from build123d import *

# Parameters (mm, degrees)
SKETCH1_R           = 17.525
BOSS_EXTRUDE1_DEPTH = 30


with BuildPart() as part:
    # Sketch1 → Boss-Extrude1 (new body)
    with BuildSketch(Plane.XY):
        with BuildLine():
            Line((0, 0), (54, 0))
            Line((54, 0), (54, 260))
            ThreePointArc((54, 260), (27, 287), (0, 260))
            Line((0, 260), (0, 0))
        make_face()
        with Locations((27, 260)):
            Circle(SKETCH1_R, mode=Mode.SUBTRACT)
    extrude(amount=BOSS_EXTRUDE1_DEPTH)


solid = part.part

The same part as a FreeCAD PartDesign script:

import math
import FreeCAD as App
import Part
import Sketcher
Q = App.Units.Quantity

doc = App.newDocument("Part")
body = doc.addObject("PartDesign::Body", "Body")

# Sketch on XY plane
sketch1 = body.newObject("Sketcher::SketchObject", "Sketch")
sketch1.AttachmentSupport = (doc.getObject("XY_Plane"), [""])
sketch1.MapMode = "FlatFace"
sketch1.addGeometry([
    Part.LineSegment(App.Vector(0, 0, 0), App.Vector(54, 0, 0)),  # 0
    Part.LineSegment(App.Vector(54, 0, 0), App.Vector(54, 260, 0)),  # 1
    Part.ArcOfCircle(Part.Circle(App.Vector(27, 260, 0), App.Vector(0, 0, 1), 27), math.radians(0), math.radians(180)),  # 2
    Part.LineSegment(App.Vector(0, 260, 0), App.Vector(0, 0, 0)),  # 3
    Part.Circle(App.Vector(27, 260, 0), App.Vector(0, 0, 1), 18),  # 4
], False)
sketch1.addConstraint([
    Sketcher.Constraint("Coincident", 0, 2, 1, 1),
    Sketcher.Constraint("Tangent", 1, 2, 2, 1),
    Sketcher.Constraint("Tangent", 2, 2, 3, 1),
    Sketcher.Constraint("Coincident", 3, 2, 0, 1),
    Sketcher.Constraint("Horizontal", 0),
    Sketcher.Constraint("Vertical", 1),
    Sketcher.Constraint("Vertical", 3),
    Sketcher.Constraint("Coincident", 3, 2, -1, 1),
    Sketcher.Constraint("Coincident", 4, 3, 2, 3),
    Sketcher.Constraint("Radius", 2, Q("27 mm")),
    Sketcher.Constraint("Diameter", 4, Q("35.05 mm")),
    Sketcher.Constraint("DistanceY", 1, 1, 1, 2, Q("260 mm")),
])
pad1 = body.newObject("PartDesign::Pad", "Pad")
pad1.Profile = sketch1
pad1.Length = 30

doc.recompute()
